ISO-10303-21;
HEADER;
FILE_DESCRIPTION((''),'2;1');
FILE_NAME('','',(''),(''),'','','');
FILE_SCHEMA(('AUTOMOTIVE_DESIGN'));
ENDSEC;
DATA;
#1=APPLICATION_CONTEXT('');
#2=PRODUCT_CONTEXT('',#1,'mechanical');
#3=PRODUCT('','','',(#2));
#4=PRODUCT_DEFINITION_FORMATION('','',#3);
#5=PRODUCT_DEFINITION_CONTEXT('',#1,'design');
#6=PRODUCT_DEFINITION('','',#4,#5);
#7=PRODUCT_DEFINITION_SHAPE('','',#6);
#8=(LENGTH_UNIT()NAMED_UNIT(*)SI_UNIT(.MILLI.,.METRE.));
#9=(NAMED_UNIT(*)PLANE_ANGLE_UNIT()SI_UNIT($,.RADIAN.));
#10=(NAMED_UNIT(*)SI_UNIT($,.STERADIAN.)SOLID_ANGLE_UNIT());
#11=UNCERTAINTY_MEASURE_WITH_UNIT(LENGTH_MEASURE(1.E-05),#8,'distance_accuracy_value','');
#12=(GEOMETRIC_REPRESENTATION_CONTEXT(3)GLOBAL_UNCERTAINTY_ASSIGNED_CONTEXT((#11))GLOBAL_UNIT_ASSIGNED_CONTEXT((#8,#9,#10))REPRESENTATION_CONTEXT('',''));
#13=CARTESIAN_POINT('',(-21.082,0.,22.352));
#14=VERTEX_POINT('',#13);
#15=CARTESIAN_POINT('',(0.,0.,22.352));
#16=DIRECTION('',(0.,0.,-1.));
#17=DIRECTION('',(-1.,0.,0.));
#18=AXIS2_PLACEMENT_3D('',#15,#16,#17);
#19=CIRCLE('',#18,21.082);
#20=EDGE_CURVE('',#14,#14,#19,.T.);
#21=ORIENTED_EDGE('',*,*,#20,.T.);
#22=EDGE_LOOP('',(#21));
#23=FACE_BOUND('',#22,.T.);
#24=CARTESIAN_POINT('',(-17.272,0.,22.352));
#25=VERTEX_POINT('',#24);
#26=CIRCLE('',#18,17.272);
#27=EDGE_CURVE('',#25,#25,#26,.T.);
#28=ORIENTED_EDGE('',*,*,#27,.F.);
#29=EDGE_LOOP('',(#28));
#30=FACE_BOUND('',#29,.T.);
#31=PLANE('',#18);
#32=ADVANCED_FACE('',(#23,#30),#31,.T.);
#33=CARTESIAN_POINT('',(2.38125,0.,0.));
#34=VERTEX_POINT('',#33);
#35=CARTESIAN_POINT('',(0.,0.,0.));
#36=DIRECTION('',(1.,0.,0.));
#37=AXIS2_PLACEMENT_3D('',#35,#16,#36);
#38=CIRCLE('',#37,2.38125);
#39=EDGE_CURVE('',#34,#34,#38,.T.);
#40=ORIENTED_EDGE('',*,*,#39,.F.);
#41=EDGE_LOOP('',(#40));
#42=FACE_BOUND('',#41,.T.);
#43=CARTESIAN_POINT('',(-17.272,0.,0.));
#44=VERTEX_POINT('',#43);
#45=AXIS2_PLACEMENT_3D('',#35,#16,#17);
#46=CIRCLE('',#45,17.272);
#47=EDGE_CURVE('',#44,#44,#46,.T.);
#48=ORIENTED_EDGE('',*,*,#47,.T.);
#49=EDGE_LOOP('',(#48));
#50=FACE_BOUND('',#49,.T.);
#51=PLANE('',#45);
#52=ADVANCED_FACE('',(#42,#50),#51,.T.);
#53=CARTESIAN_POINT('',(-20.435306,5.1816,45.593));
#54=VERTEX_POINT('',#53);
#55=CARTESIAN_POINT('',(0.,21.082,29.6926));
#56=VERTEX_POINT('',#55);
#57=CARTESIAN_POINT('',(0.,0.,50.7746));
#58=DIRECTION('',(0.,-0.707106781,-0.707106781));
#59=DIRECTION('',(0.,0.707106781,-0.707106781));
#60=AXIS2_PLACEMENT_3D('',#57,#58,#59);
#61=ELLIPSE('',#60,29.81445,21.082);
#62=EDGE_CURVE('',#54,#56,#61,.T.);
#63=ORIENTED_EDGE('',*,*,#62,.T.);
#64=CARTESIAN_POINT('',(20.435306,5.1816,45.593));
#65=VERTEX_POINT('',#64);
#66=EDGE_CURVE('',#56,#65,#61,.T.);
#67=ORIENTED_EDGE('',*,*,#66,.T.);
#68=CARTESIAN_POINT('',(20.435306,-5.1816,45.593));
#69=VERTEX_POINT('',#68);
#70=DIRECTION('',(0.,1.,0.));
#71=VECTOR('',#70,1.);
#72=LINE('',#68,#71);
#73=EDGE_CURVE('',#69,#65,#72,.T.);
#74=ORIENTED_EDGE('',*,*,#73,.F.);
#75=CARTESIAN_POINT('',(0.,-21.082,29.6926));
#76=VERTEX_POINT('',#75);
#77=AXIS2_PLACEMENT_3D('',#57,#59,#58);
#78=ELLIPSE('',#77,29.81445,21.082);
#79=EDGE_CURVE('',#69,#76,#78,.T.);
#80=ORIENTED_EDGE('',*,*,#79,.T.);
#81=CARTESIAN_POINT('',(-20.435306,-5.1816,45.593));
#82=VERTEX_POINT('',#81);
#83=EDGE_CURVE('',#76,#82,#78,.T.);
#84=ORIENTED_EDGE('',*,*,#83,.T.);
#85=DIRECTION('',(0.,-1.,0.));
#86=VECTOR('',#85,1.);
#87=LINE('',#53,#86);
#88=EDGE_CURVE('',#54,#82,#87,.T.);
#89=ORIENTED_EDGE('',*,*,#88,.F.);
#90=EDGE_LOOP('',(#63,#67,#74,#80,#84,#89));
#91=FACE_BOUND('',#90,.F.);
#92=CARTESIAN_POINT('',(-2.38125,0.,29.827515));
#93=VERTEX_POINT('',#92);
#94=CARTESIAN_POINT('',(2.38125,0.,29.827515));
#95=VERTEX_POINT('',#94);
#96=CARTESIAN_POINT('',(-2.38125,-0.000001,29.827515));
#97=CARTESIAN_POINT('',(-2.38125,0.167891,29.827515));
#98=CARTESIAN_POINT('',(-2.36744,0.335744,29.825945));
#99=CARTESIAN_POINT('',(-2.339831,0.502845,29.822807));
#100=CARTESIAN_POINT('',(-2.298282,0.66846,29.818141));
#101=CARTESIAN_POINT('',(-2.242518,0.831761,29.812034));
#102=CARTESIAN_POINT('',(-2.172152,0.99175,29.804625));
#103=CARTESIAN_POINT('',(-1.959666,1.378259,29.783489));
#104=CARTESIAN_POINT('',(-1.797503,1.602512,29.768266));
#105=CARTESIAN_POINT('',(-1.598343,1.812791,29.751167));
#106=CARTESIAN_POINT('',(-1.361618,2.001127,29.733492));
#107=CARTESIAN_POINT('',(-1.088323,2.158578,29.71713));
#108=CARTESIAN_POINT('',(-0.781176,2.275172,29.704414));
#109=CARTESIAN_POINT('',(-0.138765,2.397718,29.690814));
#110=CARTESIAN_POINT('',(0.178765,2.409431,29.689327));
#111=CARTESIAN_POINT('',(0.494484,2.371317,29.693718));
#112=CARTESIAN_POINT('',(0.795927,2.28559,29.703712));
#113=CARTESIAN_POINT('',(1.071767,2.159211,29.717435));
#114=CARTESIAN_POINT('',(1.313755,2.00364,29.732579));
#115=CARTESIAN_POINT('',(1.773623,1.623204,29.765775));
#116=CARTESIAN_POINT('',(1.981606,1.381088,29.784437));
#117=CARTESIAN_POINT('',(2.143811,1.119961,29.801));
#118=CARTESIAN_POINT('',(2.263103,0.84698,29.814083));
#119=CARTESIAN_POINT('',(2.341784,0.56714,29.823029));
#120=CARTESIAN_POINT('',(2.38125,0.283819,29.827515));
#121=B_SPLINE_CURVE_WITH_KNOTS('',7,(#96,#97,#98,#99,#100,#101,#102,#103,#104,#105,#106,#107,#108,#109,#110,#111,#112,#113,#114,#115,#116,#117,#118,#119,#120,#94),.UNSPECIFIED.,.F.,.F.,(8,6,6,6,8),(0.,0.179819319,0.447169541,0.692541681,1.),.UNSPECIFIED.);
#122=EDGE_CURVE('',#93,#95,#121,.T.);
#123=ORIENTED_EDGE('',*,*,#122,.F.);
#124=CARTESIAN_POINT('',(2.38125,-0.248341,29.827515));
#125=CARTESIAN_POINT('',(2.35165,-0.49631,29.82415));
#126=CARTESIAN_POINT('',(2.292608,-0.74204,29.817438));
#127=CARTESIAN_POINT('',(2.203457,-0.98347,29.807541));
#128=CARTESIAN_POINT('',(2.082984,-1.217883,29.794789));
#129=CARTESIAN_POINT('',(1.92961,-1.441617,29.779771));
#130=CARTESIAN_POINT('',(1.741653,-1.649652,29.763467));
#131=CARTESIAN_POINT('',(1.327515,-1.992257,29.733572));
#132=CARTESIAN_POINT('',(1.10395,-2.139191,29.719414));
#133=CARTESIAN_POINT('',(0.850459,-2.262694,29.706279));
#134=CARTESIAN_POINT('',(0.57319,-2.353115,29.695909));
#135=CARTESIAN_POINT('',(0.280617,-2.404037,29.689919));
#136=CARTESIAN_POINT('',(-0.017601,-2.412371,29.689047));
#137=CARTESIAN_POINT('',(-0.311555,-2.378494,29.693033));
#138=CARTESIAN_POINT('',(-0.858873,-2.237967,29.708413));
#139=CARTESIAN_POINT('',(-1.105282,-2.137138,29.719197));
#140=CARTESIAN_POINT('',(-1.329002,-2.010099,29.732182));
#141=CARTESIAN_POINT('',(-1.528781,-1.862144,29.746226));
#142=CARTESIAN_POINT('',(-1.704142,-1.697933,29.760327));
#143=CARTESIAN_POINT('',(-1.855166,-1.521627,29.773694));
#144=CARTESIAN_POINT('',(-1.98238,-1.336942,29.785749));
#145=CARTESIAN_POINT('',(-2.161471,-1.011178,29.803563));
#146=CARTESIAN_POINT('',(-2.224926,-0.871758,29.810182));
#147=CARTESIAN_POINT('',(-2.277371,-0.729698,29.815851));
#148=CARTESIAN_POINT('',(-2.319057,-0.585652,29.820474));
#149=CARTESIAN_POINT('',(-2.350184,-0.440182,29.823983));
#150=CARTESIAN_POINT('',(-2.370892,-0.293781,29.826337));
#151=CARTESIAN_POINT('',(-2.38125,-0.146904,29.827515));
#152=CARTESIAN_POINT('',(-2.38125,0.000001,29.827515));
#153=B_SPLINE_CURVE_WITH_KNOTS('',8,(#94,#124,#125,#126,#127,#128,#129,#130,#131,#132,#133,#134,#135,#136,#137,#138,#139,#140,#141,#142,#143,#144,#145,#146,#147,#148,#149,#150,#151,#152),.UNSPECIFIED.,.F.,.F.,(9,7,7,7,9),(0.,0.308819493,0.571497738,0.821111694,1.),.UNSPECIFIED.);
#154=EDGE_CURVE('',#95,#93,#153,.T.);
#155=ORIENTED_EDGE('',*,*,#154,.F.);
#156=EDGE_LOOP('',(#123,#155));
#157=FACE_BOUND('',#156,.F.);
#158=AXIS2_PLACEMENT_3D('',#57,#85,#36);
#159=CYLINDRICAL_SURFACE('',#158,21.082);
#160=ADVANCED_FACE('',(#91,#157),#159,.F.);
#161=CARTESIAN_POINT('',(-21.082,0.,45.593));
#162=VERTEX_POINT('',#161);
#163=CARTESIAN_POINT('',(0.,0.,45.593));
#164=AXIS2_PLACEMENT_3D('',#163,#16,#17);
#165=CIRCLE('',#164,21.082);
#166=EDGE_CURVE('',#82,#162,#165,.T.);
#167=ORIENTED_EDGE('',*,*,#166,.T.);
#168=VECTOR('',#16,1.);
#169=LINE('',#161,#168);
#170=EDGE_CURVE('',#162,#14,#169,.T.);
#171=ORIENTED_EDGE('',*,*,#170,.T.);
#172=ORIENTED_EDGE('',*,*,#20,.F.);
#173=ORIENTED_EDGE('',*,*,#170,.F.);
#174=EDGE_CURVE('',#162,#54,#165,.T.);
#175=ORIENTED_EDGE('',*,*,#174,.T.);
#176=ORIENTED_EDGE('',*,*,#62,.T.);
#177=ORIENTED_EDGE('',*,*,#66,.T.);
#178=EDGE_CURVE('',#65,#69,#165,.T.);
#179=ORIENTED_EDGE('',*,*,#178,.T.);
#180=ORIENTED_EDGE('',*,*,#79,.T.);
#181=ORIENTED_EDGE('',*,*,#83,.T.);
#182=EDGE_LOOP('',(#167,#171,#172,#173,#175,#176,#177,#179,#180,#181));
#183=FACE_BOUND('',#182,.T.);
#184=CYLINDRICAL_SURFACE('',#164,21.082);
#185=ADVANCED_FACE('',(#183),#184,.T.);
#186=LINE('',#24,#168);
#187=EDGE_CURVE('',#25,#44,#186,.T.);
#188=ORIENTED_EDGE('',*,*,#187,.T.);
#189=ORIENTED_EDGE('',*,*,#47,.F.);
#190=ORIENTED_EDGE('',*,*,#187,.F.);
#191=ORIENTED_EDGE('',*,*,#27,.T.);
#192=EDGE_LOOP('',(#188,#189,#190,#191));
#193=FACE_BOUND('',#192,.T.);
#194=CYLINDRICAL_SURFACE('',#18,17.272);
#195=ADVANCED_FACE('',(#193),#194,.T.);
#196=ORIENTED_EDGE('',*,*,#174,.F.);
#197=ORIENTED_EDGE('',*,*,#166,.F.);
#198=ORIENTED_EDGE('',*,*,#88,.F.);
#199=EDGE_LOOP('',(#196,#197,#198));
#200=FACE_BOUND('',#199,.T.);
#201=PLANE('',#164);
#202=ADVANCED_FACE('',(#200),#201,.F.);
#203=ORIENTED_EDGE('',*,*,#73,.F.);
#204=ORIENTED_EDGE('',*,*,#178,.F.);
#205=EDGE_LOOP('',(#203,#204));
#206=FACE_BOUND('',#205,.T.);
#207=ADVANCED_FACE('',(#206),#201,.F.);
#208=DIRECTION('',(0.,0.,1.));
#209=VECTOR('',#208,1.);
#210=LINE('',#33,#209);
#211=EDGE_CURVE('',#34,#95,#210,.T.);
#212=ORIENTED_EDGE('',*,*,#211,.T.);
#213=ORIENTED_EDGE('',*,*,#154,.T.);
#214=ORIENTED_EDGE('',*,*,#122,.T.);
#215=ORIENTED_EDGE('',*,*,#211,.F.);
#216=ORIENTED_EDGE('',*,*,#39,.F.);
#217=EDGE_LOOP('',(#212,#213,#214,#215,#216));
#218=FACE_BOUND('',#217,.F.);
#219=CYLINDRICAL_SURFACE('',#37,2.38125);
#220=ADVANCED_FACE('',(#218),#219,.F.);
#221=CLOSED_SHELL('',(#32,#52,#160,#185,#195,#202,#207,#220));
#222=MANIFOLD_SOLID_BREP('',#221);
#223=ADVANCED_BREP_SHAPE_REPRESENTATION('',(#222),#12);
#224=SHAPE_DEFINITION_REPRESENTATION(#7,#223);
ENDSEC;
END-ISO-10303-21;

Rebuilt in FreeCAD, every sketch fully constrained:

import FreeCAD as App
import Part
import Sketcher
from FreeCAD import Vector
Q = App.Units.Quantity


def add_polygon(sketch, points):
    """Adds a closed chain of lines whose ends are joined by coincident constraints."""
    first, n = sketch.GeometryCount, len(points)
    for a, b in zip(points, points[1:] + points[:1]):
        sketch.addGeometry(Part.LineSegment(App.Vector(*a, 0), App.Vector(*b, 0)), False)
    for i in range(n):
        sketch.addConstraint(Sketcher.Constraint("Coincident", first + i, 2, first + (i + 1) % n, 1))

doc = App.newDocument("Part")
body = doc.addObject("PartDesign::Body", "Body")

# Sketch on XZ plane
sketch1 = body.newObject("Sketcher::SketchObject", "Sketch")
sketch1.AttachmentSupport = (doc.getObject("XZ_Plane"), [""])
sketch1.MapMode = "FlatFace"
add_polygon(sketch1, [(-17.272, 0), (0, 0), (0, 45.593), (-21.082, 45.593), (-21.082, 22.352), (-17.272, 22.352)])  # lines 0-5
sketch1.addConstraint(Sketcher.Constraint("Horizontal", 0))
sketch1.addConstraint(Sketcher.Constraint("Vertical", 1))
sketch1.addConstraint(Sketcher.Constraint("Horizontal", 2))
sketch1.addConstraint(Sketcher.Constraint("Vertical", 3))
sketch1.addConstraint(Sketcher.Constraint("Horizontal", 4))
sketch1.addConstraint(Sketcher.Constraint("Vertical", 5))
sketch1.addConstraint(Sketcher.Constraint("Coincident", 0, 2, -1, 1))
sketch1.addConstraint(Sketcher.Constraint("DistanceX", 0, 1, 0, 2, Q("0.68 in")))
sketch1.addConstraint(Sketcher.Constraint("DistanceX", 2, 2, 2, 1, Q("0.83 in")))
sketch1.addConstraint(Sketcher.Constraint("DistanceY", 5, 2, 5, 1, Q("0.88 in")))
sketch1.addConstraint(Sketcher.Constraint("DistanceY", 1, 1, 1, 2, Q("1.795 in")))
revolution = body.newObject("PartDesign::Revolution", "Revolution")
revolution.Profile = sketch1
revolution.ReferenceAxis = (sketch1, ["V_Axis"])
revolution.Angle = 360

# Sketch on XY plane
sketch2 = body.newObject("Sketcher::SketchObject", "Sketch001")
sketch2.AttachmentSupport = (doc.getObject("XY_Plane"), [""])
sketch2.MapMode = "FlatFace"
sketch2.addGeometry(Part.Circle(Vector(0, 0, 0), Vector(0, 0, 1), 2.38125), False)
sketch2.addConstraint(Sketcher.Constraint("Coincident", 0, 3, -1, 1))
sketch2.addConstraint(Sketcher.Constraint("Diameter", 0, Q("0.1875 in")))
pocket1 = body.newObject("PartDesign::Pocket", "Pocket")
pocket1.Profile = sketch2
pocket1.Type = "ThroughAll"
pocket1.Reversed = True

# Sketch on XZ plane
sketch3 = body.newObject("Sketcher::SketchObject", "Sketch002")
sketch3.AttachmentSupport = (doc.getObject("XZ_Plane"), [""])
sketch3.MapMode = "FlatFace"
sketch3.addGeometry(Part.Circle(Vector(0, 50.7746, 0), Vector(0, 0, 1), 21.082), False)
sketch3.addConstraint(Sketcher.Constraint("PointOnObject", 0, 3, -2))
sketch3.addConstraint(Sketcher.Constraint("Diameter", 0, Q("1.66 in")))
sketch3.addConstraint(Sketcher.Constraint("DistanceY", -1, 1, 0, 3, Q("1.999 in")))
pocket2 = body.newObject("PartDesign::Pocket", "Pocket001")
pocket2.Profile = sketch3
pocket2.Type = "ThroughAll"
pocket2.Midplane = True

doc.recompute()
